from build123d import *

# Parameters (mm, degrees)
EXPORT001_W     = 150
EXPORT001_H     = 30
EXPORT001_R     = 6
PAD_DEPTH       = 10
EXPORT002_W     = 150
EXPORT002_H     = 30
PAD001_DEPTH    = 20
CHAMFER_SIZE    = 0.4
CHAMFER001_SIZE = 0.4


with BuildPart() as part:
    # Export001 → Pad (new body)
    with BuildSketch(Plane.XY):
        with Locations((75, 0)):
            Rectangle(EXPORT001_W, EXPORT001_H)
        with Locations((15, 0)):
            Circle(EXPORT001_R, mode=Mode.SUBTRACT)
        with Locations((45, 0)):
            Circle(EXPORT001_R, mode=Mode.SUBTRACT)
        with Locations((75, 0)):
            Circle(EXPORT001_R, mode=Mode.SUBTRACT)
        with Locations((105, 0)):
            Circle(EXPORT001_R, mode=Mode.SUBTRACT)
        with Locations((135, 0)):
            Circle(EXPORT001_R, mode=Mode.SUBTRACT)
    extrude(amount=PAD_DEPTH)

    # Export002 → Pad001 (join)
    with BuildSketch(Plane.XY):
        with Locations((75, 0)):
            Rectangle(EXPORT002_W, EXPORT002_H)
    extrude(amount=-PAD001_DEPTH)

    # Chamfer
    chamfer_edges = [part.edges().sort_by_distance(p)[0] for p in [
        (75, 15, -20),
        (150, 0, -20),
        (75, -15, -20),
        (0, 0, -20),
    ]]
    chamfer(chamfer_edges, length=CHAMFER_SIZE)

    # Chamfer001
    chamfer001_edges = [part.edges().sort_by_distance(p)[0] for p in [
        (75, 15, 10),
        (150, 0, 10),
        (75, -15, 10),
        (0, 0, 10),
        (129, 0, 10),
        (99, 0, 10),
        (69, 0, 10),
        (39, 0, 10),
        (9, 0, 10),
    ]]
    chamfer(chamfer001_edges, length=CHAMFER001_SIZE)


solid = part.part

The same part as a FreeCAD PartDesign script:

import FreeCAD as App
import Part
import Sketcher

V = App.Vector
Q = App.Units.Quantity


def edges_at(feature, points):
    """Names of the edges that pass closest to the given points."""
    edges = feature.Shape.Edges
    near = lambda p: min(range(len(edges)), key=lambda i: edges[i].distToShape(Part.Vertex(*p))[0])
    return sorted({f"Edge{near(p) + 1}" for p in points})


def add_polygon(sketch, points):
    """Adds a closed chain of lines whose ends are joined by coincident constraints."""
    first, n = sketch.GeometryCount, len(points)
    for a, b in zip(points, points[1:] + points[:1]):
        sketch.addGeometry(Part.LineSegment(App.Vector(*a, 0), App.Vector(*b, 0)), False)
    for i in range(n):
        sketch.addConstraint(Sketcher.Constraint("Coincident", first + i, 2, first + (i + 1) % n, 1))

doc = App.newDocument("Part")
params = doc.addObject("Spreadsheet::Sheet", "Params")
for row, (alias, value) in enumerate([
    ("sketch1_diameter", "12 mm"),
    ("sketch1_width", "150 mm"),
    ("sketch1_height", "30 mm"),
    ("pad1_length", "10 mm"),
    ("sketch2_width", "150 mm"),
    ("sketch2_height", "30 mm"),
    ("pad2_length", "20 mm"),
    ("chamfer_size", "0.4 mm"),
    ("chamfer2_size", "0.4 mm"),
], start=1):
    params.set(f"A{row}", alias)
    params.set(f"B{row}", "=" + value)
    params.setAlias(f"B{row}", alias)

body = doc.addObject("PartDesign::Body", "Body")

# Sketch on XY plane
sketch1 = body.newObject("Sketcher::SketchObject", "Sketch")
sketch1.AttachmentSupport = (doc.getObject("XY_Plane"), [""])
sketch1.MapMode = "FlatFace"
add_polygon(sketch1, [(0, 15), (0, -15), (150, -15), (150, 15)])  # lines 0-3
sketch1.addGeometry(Part.Circle(V(15, 0, 0), V(0, 0, 1), 6), False)  # 4
sketch1.addGeometry(Part.Circle(V(45, 0, 0), V(0, 0, 1), 6), False)  # 5
sketch1.addGeometry(Part.Circle(V(75, 0, 0), V(0, 0, 1), 6), False)  # 6
sketch1.addGeometry(Part.Circle(V(105, 0, 0), V(0, 0, 1), 6), False)  # 7
sketch1.addGeometry(Part.Circle(V(135, 0, 0), V(0, 0, 1), 6), False)  # 8
sketch1.addConstraint([
    Sketcher.Constraint("Vertical", 0),
    Sketcher.Constraint("Horizontal", 1),
    Sketcher.Constraint("Vertical", 2),
    Sketcher.Constraint("Horizontal", 3),
    Sketcher.Constraint("Equal", 4, 5),
    Sketcher.Constraint("Equal", 5, 6),
    Sketcher.Constraint("Equal", 6, 7),
    Sketcher.Constraint("Equal", 7, 8),
    Sketcher.Constraint("Symmetric", 0, 2, 3, 2, -1, 1),
    Sketcher.Constraint("PointOnObject", 4, 3, -1),
    Sketcher.Constraint("PointOnObject", 5, 3, -1),
    Sketcher.Constraint("PointOnObject", 6, 3, -1),
    Sketcher.Constraint("PointOnObject", 7, 3, -1),
    Sketcher.Constraint("PointOnObject", 8, 3, -1),
    Sketcher.Constraint("Diameter", 4, Q("12 mm")),
    Sketcher.Constraint("DistanceX", 1, 1, 1, 2, Q("150 mm")),
    Sketcher.Constraint("DistanceY", 0, 2, 0, 1, Q("30 mm")),
    Sketcher.Constraint("DistanceX", -1, 1, 4, 3, Q("15 mm")),
    Sketcher.Constraint("DistanceX", -1, 1, 5, 3, Q("45 mm")),
    Sketcher.Constraint("DistanceX", -1, 1, 6, 3, Q("75 mm")),
    Sketcher.Constraint("DistanceX", -1, 1, 7, 3, Q("105 mm")),
    Sketcher.Constraint("DistanceX", -1, 1, 8, 3, Q("135 mm")),
])
sketch1.setExpression("Constraints[18]", "Params.sketch1_diameter")
sketch1.setExpression("Constraints[19]", "Params.sketch1_width")
sketch1.setExpression("Constraints[20]", "Params.sketch1_height")
pad1 = body.newObject("PartDesign::Pad", "Pad")
pad1.Profile = sketch1
pad1.setExpression("Length", "Params.pad1_length")

# Sketch on XY plane
sketch2 = body.newObject("Sketcher::SketchObject", "Sketch001")
sketch2.AttachmentSupport = (doc.getObject("XY_Plane"), [""])
sketch2.MapMode = "FlatFace"
add_polygon(sketch2, [(0, 15), (0, -15), (150, -15), (150, 15)])  # lines 0-3
sketch2.addConstraint([
    Sketcher.Constraint("Vertical", 0),
    Sketcher.Constraint("Horizontal", 1),
    Sketcher.Constraint("Vertical", 2),
    Sketcher.Constraint("Horizontal", 3),
    Sketcher.Constraint("Symmetric", 0, 2, 3, 2, -1, 1),
    Sketcher.Constraint("DistanceX", 1, 1, 1, 2, Q("150 mm")),
    Sketcher.Constraint("DistanceY", 0, 2, 0, 1, Q("30 mm")),
])
sketch2.setExpression("Constraints[9]", "Params.sketch2_width")
sketch2.setExpression("Constraints[10]", "Params.sketch2_height")
pad2 = body.newObject("PartDesign::Pad", "Pad001")
pad2.Profile = sketch2
pad2.setExpression("Length", "Params.pad2_length")
pad2.Reversed = True
doc.recompute()

chamfer = body.newObject("PartDesign::Chamfer", "Chamfer")
chamfer.Base = (pad2, edges_at(pad2, [
    (75, 15, -20),
    (150, 0, -20),
    (75, -15, -20),
    (0, 0, -20),
]))
chamfer.setExpression("Size", "Params.chamfer_size")
doc.recompute()

chamfer2 = body.newObject("PartDesign::Chamfer", "Chamfer001")
chamfer2.Base = (chamfer, edges_at(chamfer, [
    (75, 15, 10),
    (150, 0, 10),
    (75, -15, 10),
    (0, 0, 10),
    (129, 0, 10),
    (99, 0, 10),
    (69, 0, 10),
    (39, 0, 10),
    (9, 0, 10),
]))
chamfer2.setExpression("Size", "Params.chamfer2_size")

doc.recompute()
